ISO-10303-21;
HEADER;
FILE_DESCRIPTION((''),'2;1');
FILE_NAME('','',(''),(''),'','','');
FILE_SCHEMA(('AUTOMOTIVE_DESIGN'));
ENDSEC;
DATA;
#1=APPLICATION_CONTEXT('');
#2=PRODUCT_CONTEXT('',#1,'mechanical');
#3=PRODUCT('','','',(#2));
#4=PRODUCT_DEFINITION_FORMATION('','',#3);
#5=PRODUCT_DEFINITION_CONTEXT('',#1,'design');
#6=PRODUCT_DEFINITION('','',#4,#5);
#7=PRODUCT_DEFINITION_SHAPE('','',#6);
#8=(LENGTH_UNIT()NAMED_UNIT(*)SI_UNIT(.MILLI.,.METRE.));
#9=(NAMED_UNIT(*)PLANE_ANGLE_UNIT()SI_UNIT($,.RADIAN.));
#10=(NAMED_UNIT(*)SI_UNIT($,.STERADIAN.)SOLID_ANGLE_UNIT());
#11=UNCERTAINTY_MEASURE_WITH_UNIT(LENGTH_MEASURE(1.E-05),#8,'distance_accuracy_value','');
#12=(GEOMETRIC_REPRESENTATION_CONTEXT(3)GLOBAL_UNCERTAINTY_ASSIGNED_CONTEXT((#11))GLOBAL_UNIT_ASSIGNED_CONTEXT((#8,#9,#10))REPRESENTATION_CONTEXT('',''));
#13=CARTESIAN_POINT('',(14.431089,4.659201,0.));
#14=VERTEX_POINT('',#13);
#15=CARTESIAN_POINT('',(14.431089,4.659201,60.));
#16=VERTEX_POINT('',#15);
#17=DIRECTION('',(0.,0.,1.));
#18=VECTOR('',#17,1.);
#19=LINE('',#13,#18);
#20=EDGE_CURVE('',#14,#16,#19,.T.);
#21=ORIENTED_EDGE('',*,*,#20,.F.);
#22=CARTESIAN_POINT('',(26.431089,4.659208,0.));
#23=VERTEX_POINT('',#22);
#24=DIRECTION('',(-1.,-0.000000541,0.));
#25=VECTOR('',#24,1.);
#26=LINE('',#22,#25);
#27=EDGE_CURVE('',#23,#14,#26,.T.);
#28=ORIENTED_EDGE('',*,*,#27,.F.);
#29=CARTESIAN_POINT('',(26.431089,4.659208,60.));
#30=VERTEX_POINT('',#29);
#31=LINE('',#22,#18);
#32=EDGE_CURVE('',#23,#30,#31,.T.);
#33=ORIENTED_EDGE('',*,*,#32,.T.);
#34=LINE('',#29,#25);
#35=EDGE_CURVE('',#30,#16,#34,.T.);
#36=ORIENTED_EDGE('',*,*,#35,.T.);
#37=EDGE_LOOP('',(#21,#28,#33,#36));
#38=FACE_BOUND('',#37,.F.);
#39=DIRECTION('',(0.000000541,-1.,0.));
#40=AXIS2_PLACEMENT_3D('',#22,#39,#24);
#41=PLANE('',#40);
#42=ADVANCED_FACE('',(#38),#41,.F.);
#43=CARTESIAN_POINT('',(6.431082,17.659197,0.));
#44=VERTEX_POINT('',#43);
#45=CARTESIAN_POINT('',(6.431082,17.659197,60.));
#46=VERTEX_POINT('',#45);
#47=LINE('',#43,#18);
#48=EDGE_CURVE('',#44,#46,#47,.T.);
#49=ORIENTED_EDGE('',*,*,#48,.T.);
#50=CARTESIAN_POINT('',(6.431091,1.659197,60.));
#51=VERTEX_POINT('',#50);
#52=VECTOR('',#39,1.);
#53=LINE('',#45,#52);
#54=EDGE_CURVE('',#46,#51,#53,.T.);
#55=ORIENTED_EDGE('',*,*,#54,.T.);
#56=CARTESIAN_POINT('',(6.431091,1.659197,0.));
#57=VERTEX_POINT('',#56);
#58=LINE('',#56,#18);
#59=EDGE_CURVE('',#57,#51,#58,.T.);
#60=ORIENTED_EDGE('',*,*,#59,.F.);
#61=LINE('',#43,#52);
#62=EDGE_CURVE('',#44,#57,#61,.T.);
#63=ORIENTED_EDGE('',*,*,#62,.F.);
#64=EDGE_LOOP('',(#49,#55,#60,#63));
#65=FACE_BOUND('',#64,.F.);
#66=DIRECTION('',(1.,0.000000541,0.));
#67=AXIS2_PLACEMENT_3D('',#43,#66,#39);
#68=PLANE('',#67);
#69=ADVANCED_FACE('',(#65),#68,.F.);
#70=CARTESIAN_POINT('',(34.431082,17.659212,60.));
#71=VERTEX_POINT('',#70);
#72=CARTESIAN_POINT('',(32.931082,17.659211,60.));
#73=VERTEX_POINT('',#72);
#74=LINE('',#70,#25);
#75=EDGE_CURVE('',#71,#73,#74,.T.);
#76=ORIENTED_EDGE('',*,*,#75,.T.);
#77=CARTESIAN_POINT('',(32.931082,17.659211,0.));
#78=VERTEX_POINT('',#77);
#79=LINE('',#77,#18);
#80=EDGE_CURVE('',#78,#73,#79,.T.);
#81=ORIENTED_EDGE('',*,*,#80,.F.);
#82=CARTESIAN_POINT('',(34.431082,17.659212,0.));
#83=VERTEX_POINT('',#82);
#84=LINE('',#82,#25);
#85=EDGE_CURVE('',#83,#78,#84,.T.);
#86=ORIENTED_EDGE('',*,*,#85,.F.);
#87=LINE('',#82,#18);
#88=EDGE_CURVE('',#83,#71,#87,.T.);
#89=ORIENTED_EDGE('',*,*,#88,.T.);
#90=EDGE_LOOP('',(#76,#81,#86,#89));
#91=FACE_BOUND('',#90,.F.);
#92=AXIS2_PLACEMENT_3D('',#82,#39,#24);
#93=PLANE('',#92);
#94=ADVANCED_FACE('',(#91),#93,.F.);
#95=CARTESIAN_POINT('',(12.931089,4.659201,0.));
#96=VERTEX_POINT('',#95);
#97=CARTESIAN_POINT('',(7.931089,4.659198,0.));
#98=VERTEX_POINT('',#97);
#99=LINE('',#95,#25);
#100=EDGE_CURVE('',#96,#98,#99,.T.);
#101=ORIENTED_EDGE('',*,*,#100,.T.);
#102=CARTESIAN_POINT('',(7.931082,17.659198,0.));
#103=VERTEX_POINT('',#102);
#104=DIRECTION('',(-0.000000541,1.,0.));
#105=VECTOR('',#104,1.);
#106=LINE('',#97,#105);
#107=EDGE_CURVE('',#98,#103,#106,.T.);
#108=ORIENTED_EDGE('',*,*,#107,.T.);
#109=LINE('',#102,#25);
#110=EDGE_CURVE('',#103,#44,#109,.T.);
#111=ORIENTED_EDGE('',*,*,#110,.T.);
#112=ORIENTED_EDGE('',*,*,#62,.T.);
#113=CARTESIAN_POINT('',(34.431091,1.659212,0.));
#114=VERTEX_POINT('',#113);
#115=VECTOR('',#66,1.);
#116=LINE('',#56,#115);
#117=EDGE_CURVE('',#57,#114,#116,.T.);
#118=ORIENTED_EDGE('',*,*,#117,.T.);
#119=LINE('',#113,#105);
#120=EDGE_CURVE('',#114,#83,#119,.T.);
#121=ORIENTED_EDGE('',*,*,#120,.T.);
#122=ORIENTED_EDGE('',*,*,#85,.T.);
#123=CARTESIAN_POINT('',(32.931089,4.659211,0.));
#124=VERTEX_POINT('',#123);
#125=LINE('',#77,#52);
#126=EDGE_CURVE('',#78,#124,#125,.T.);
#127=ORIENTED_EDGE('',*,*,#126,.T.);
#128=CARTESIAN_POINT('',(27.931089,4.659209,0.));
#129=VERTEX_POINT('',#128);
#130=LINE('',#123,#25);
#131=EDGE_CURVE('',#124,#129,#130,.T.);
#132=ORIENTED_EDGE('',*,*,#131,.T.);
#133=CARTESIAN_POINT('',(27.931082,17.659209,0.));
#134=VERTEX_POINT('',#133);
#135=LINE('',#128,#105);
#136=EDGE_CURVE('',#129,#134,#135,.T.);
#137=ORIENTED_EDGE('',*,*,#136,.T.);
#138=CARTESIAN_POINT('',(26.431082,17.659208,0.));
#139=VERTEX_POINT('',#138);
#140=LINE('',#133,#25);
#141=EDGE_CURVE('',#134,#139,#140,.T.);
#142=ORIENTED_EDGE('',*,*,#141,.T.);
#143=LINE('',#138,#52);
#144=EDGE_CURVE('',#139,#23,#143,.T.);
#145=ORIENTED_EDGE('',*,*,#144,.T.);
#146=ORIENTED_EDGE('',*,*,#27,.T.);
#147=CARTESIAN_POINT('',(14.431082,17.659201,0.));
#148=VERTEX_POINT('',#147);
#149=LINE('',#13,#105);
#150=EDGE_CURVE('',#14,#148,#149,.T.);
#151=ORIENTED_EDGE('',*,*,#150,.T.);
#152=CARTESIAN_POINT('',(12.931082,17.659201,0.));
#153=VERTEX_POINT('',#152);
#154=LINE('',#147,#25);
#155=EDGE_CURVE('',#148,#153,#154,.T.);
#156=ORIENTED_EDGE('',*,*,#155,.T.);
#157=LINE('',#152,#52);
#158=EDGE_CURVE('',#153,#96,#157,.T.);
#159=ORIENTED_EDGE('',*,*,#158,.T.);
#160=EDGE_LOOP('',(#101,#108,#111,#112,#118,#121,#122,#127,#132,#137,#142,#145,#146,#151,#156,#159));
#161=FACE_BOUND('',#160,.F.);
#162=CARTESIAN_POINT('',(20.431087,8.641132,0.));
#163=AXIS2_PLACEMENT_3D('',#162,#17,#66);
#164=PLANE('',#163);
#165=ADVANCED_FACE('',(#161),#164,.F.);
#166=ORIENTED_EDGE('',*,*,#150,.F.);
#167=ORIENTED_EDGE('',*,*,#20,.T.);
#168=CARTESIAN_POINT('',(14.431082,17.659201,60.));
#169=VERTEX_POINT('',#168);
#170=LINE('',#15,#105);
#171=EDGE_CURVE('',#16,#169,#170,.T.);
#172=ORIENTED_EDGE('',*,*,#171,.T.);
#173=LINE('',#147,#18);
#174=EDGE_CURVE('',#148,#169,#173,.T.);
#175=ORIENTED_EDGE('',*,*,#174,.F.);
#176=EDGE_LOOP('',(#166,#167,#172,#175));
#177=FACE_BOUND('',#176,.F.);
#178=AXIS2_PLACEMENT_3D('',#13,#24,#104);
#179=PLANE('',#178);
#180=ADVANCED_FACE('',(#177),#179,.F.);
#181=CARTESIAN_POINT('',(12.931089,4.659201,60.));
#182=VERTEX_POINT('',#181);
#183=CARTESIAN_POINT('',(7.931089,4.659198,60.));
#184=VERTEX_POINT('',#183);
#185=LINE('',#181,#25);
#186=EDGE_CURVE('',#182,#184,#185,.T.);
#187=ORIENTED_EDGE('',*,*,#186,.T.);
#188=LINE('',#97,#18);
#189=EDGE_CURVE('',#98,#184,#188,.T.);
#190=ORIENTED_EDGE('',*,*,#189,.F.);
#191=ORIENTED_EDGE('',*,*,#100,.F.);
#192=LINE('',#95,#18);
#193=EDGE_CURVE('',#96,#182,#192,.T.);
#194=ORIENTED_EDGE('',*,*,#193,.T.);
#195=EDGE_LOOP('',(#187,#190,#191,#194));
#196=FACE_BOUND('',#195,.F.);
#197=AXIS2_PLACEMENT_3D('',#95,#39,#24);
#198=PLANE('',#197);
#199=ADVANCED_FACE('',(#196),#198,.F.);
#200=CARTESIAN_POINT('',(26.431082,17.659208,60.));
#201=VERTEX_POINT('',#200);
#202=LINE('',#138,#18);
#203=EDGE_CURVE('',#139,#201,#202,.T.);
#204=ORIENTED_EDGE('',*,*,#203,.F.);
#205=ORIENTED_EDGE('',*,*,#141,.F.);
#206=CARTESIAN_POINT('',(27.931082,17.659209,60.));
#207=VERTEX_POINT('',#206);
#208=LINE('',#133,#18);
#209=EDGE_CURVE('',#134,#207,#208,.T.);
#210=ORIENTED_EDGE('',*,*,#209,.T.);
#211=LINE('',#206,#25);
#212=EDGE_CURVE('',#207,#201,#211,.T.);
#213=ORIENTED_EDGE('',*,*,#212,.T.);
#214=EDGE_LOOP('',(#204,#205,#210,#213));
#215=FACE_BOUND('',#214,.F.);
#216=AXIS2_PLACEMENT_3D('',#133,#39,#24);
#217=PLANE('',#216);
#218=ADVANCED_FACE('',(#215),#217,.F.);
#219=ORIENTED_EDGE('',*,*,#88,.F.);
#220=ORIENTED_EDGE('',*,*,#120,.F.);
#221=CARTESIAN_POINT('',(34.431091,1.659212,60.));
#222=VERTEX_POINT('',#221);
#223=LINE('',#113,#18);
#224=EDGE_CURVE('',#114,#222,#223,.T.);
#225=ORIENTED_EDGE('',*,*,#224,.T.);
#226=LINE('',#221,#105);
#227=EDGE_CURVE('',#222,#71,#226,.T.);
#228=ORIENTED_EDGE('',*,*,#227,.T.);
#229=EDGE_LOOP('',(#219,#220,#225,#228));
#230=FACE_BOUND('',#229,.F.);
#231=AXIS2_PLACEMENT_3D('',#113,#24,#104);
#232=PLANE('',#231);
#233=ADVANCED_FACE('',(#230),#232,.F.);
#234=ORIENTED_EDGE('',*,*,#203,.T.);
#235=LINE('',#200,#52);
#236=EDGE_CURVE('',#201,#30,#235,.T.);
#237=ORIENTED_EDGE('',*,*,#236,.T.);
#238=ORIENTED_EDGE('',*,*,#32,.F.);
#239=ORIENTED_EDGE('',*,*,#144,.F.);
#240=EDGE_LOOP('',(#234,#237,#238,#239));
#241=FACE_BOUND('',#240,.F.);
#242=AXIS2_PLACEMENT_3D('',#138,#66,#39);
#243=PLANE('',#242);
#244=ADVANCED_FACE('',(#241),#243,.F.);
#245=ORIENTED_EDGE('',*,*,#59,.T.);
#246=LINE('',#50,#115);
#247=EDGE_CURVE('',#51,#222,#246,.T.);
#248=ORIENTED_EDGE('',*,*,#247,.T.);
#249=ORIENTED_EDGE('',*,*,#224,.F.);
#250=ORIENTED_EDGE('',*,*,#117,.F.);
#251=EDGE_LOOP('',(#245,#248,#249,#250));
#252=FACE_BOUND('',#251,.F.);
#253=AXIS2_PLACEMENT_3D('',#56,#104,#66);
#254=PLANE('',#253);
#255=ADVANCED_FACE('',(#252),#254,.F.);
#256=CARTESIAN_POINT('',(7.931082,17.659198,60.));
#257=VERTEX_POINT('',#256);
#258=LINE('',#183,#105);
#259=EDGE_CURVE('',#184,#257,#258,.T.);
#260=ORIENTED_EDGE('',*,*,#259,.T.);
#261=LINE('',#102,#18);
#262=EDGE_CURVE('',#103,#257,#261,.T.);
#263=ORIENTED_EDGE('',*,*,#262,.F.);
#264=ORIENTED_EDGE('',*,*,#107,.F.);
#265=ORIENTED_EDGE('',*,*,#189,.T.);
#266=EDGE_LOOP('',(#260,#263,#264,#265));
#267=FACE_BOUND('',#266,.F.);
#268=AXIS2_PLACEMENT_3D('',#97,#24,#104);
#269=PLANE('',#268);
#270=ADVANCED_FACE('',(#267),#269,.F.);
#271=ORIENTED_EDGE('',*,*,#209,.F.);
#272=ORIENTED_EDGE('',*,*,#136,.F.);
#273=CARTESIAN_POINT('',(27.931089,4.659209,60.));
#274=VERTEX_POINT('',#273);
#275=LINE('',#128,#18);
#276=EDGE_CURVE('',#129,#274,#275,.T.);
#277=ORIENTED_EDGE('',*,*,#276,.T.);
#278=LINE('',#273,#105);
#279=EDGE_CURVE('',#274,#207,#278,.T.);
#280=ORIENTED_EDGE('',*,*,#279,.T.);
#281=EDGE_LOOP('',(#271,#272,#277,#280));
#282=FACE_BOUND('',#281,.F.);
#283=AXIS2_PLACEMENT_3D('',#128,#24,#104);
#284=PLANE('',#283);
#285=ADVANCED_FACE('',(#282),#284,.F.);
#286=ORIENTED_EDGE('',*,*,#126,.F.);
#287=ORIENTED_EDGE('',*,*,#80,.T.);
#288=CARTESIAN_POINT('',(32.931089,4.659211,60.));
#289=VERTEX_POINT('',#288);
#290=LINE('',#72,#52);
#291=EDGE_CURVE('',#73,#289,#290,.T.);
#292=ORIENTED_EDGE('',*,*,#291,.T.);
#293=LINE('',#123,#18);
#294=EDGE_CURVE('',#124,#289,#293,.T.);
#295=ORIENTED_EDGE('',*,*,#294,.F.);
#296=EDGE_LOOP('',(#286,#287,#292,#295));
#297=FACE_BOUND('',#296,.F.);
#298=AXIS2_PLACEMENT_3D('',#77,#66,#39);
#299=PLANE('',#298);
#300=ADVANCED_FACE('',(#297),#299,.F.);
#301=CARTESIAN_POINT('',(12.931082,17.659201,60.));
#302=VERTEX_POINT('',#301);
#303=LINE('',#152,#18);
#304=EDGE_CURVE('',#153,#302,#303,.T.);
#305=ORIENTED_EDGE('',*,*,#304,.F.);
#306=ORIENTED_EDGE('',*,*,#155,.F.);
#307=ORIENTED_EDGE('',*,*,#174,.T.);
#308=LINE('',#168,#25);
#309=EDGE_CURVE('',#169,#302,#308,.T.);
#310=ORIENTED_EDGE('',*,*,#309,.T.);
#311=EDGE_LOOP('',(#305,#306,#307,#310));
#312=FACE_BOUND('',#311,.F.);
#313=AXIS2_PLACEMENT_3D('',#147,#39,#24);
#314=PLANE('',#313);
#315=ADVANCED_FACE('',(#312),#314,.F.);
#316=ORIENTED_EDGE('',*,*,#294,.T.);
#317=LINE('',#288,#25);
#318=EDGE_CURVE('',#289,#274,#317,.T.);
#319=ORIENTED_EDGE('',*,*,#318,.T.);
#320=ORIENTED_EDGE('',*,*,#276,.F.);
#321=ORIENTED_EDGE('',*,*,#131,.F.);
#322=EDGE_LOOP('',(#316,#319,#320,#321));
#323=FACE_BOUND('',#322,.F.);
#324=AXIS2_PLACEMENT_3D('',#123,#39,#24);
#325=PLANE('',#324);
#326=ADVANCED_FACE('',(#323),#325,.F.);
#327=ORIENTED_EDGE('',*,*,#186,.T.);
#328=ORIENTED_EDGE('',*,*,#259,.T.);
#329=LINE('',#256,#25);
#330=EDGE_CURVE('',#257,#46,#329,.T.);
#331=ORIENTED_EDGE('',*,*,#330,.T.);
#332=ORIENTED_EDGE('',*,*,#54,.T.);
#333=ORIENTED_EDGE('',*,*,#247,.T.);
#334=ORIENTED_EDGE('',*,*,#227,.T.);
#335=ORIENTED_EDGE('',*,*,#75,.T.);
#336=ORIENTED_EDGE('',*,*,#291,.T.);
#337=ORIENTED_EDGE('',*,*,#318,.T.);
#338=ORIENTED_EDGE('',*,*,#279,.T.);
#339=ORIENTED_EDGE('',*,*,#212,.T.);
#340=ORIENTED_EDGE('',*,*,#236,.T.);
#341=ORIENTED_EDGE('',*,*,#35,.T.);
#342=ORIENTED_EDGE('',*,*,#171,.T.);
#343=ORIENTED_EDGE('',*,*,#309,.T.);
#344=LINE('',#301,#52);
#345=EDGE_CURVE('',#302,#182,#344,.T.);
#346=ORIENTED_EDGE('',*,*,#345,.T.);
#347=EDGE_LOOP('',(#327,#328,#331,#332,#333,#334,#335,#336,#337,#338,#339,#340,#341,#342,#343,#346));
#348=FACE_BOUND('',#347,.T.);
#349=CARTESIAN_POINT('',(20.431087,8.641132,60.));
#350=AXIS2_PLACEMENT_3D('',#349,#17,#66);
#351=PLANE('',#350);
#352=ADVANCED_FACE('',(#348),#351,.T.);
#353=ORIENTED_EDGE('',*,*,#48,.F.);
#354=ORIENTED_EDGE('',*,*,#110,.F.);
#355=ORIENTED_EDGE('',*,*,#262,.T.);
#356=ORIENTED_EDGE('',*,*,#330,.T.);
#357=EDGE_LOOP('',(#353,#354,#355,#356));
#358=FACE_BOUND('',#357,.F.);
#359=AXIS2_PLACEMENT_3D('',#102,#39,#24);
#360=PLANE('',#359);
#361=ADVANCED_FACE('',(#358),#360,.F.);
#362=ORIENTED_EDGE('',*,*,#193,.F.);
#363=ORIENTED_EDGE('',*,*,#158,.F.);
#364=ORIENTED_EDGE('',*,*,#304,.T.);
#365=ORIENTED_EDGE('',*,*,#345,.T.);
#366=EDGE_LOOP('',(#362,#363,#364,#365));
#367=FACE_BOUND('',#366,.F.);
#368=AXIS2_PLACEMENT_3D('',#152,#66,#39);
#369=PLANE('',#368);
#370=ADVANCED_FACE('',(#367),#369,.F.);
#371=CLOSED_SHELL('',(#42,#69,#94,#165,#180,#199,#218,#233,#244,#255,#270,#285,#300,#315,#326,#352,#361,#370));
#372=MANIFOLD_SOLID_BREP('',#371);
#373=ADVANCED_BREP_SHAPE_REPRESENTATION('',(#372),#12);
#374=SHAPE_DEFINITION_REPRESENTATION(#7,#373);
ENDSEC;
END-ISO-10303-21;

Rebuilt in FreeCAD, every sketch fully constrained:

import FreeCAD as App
import Part
import Sketcher
Q = App.Units.Quantity

doc = App.newDocument("Part")
body = doc.addObject("PartDesign::Body", "Body")

# Sketch on XY plane
sketch1 = body.newObject("Sketcher::SketchObject", "Sketch")
sketch1.AttachmentSupport = (doc.getObject("XY_Plane"), [""])
sketch1.MapMode = "FlatFace"
sketch1.addGeometry(Part.LineSegment(App.Vector(0, 0, 0), App.Vector(28, 0, 0)), False)
sketch1.addGeometry(Part.LineSegment(App.Vector(28, 0, 0), App.Vector(28, 16, 0)), False)
sketch1.addGeometry(Part.LineSegment(App.Vector(28, 16, 0), App.Vector(26.5, 16, 0)), False)
sketch1.addGeometry(Part.LineSegment(App.Vector(26.5, 16, 0), App.Vector(26.5, 3, 0)), False)
sketch1.addGeometry(Part.LineSegment(App.Vector(26.5, 3, 0), App.Vector(21.5, 3, 0)), False)
sketch1.addGeometry(Part.LineSegment(App.Vector(21.5, 3, 0), App.Vector(21.5, 16, 0)), False)
sketch1.addGeometry(Part.LineSegment(App.Vector(21.5, 16, 0), App.Vector(20, 16, 0)), False)
sketch1.addGeometry(Part.LineSegment(App.Vector(20, 16, 0), App.Vector(20, 3, 0)), False)
sketch1.addGeometry(Part.LineSegment(App.Vector(20, 3, 0), App.Vector(8, 3, 0)), False)
sketch1.addGeometry(Part.LineSegment(App.Vector(8, 3, 0), App.Vector(8, 16, 0)), False)
sketch1.addGeometry(Part.LineSegment(App.Vector(8, 16, 0), App.Vector(6.5, 16, 0)), False)
sketch1.addGeometry(Part.LineSegment(App.Vector(6.5, 16, 0), App.Vector(6.5, 3, 0)), False)
sketch1.addGeometry(Part.LineSegment(App.Vector(6.5, 3, 0), App.Vector(1.5, 3, 0)), False)
sketch1.addGeometry(Part.LineSegment(App.Vector(1.5, 3, 0), App.Vector(1.5, 16, 0)), False)
sketch1.addGeometry(Part.LineSegment(App.Vector(1.5, 16, 0), App.Vector(0, 16, 0)), False)
sketch1.addGeometry(Part.LineSegment(App.Vector(0, 16, 0), App.Vector(0, 0, 0)), False)
sketch1.addConstraint(Sketcher.Constraint("Coincident", 0, 2, 1, 1))
sketch1.addConstraint(Sketcher.Constraint("Coincident", 1, 2, 2, 1))
sketch1.addConstraint(Sketcher.Constraint("Coincident", 2, 2, 3, 1))
sketch1.addConstraint(Sketcher.Constraint("Coincident", 3, 2, 4, 1))
sketch1.addConstraint(Sketcher.Constraint("Coincident", 4, 2, 5, 1))
sketch1.addConstraint(Sketcher.Constraint("Coincident", 5, 2, 6, 1))
sketch1.addConstraint(Sketcher.Constraint("Coincident", 6, 2, 7, 1))
sketch1.addConstraint(Sketcher.Constraint("Coincident", 7, 2, 8, 1))
sketch1.addConstraint(Sketcher.Constraint("Coincident", 8, 2, 9, 1))
sketch1.addConstraint(Sketcher.Constraint("Coincident", 9, 2, 10, 1))
sketch1.addConstraint(Sketcher.Constraint("Coincident", 10, 2, 11, 1))
sketch1.addConstraint(Sketcher.Constraint("Coincident", 11, 2, 12, 1))
sketch1.addConstraint(Sketcher.Constraint("Coincident", 12, 2, 13, 1))
sketch1.addConstraint(Sketcher.Constraint("Coincident", 13, 2, 14, 1))
sketch1.addConstraint(Sketcher.Constraint("Coincident", 14, 2, 15, 1))
sketch1.addConstraint(Sketcher.Constraint("Coincident", 15, 2, 0, 1))
sketch1.addConstraint(Sketcher.Constraint("Horizontal", 0))
sketch1.addConstraint(Sketcher.Constraint("Vertical", 1))
sketch1.addConstraint(Sketcher.Constraint("Horizontal", 2))
sketch1.addConstraint(Sketcher.Constraint("Vertical", 3))
sketch1.addConstraint(Sketcher.Constraint("Horizontal", 4))
sketch1.addConstraint(Sketcher.Constraint("Vertical", 5))
sketch1.addConstraint(Sketcher.Constraint("Horizontal", 6))
sketch1.addConstraint(Sketcher.Constraint("Vertical", 7))
sketch1.addConstraint(Sketcher.Constraint("Horizontal", 8))
sketch1.addConstraint(Sketcher.Constraint("Vertical", 9))
sketch1.addConstraint(Sketcher.Constraint("Horizontal", 10))
sketch1.addConstraint(Sketcher.Constraint("Vertical", 11))
sketch1.addConstraint(Sketcher.Constraint("Horizontal", 12))
sketch1.addConstraint(Sketcher.Constraint("Vertical", 13))
sketch1.addConstraint(Sketcher.Constraint("Horizontal", 14))
sketch1.addConstraint(Sketcher.Constraint("Vertical", 15))
sketch1.addConstraint(Sketcher.Constraint("Coincident", 15, 2, -1, 1))
sketch1.addConstraint(Sketcher.Constraint("Horizontal", 2, 2, 5, 2))
sketch1.addConstraint(Sketcher.Constraint("Horizontal", 4, 2, 7, 2))
sketch1.addConstraint(Sketcher.Constraint("Horizontal", 6, 2, 9, 2))
sketch1.addConstraint(Sketcher.Constraint("Horizontal", 8, 2, 11, 2))
sketch1.addConstraint(Sketcher.Constraint("Horizontal", 10, 2, 13, 2))
sketch1.addConstraint(Sketcher.Constraint("Equal", 2, 6))
sketch1.addConstraint(Sketcher.Constraint("Equal", 6, 10))
sketch1.addConstraint(Sketcher.Constraint("Equal", 4, 12))
sketch1.addConstraint(Sketcher.Constraint("Equal", 10, 14))
sketch1.addConstraint(Sketcher.Constraint("DistanceX", 0, 1, 0, 2, Q("28 mm")))
sketch1.addConstraint(Sketcher.Constraint("DistanceX", 4, 2, 4, 1, Q("5 mm")))
sketch1.addConstraint(Sketcher.Constraint("DistanceX", 8, 2, 8, 1, Q("12 mm")))
sketch1.addConstraint(Sketcher.Constraint("DistanceY", 1, 1, 1, 2, Q("16 mm")))
sketch1.addConstraint(Sketcher.Constraint("DistanceY", 3, 2, 3, 1, Q("13 mm")))
pad1 = body.newObject("PartDesign::Pad", "Pad")
pad1.Profile = sketch1
pad1.Length = 60
body2 = doc.addObject("PartDesign::Body", "Body001")
doc.recompute()

body.Placement = App.Placement(App.Vector(6.431091, 1.659197, 0), App.Rotation(App.Vector(0, 0, 1), 0.000031))
boolean = body2.newObject("PartDesign::Boolean", "Boolean")
boolean.Type = "Fuse"
boolean.addObjects([body])

doc.recompute()
